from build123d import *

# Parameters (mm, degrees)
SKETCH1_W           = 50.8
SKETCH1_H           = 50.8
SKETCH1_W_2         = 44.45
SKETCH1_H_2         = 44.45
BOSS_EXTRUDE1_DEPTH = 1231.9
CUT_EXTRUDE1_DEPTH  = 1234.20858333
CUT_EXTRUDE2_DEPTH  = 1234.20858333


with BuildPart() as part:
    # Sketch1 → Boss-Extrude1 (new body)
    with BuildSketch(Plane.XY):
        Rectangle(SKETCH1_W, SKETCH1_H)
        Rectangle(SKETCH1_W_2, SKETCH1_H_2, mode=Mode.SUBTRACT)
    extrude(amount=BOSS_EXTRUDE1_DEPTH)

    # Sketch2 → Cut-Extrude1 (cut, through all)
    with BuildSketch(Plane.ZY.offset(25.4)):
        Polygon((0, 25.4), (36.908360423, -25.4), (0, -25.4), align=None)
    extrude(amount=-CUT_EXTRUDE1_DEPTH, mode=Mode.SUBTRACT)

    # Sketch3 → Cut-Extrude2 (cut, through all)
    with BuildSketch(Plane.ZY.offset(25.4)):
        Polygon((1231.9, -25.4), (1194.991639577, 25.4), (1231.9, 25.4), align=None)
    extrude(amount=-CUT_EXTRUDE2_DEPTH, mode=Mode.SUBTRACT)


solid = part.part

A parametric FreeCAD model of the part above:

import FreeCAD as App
import Part
import Sketcher

V = App.Vector
Q = App.Units.Quantity

doc = App.newDocument("Part")
body = doc.addObject("PartDesign::Body", "Body")

# Sketch on XY plane
sketch1 = body.newObject("Sketcher::SketchObject", "Sketch")
sketch1.AttachmentSupport = (doc.getObject("XY_Plane"), [""])
sketch1.MapMode = "FlatFace"
sketch1.addGeometry(Part.LineSegment(V(-25.4, 25.4, 0), V(-25.4, -25.4, 0)), False)
sketch1.addGeometry(Part.LineSegment(V(-25.4, -25.4, 0), V(25.4, -25.4, 0)), False)
sketch1.addGeometry(Part.LineSegment(V(25.4, -25.4, 0), V(25.4, 25.4, 0)), False)
sketch1.addGeometry(Part.LineSegment(V(25.4, 25.4, 0), V(-25.4, 25.4, 0)), False)
sketch1.addGeometry(Part.LineSegment(V(22.225, -22.225, 0), V(-22.225, -22.225, 0)), False)
sketch1.addGeometry(Part.LineSegment(V(-22.225, -22.225, 0), V(-22.225, 22.225, 0)), False)
sketch1.addGeometry(Part.LineSegment(V(-22.225, 22.225, 0), V(22.225, 22.225, 0)), False)
sketch1.addGeometry(Part.LineSegment(V(22.225, 22.225, 0), V(22.225, -22.225, 0)), False)
sketch1.addConstraint(Sketcher.Constraint("Coincident", 0, 2, 1, 1))
sketch1.addConstraint(Sketcher.Constraint("Coincident", 1, 2, 2, 1))
sketch1.addConstraint(Sketcher.Constraint("Coincident", 2, 2, 3, 1))
sketch1.addConstraint(Sketcher.Constraint("Coincident", 3, 2, 0, 1))
sketch1.addConstraint(Sketcher.Constraint("Coincident", 4, 2, 5, 1))
sketch1.addConstraint(Sketcher.Constraint("Coincident", 5, 2, 6, 1))
sketch1.addConstraint(Sketcher.Constraint("Coincident", 6, 2, 7, 1))
sketch1.addConstraint(Sketcher.Constraint("Coincident", 7, 2, 4, 1))
sketch1.addConstraint(Sketcher.Constraint("Vertical", 0))
sketch1.addConstraint(Sketcher.Constraint("Horizontal", 1))
sketch1.addConstraint(Sketcher.Constraint("Vertical", 2))
sketch1.addConstraint(Sketcher.Constraint("Horizontal", 3))
sketch1.addConstraint(Sketcher.Constraint("Horizontal", 4))
sketch1.addConstraint(Sketcher.Constraint("Vertical", 5))
sketch1.addConstraint(Sketcher.Constraint("Horizontal", 6))
sketch1.addConstraint(Sketcher.Constraint("Vertical", 7))
sketch1.addConstraint(Sketcher.Constraint("Symmetric", 0, 2, 2, 2, -1, 1))
sketch1.addConstraint(Sketcher.Constraint("Symmetric", 4, 2, 6, 2, -1, 1))
sketch1.addConstraint(Sketcher.Constraint("Equal", 3, 0))
sketch1.addConstraint(Sketcher.Constraint("Equal", 6, 5))
sketch1.addConstraint(Sketcher.Constraint("DistanceX", 1, 1, 1, 2, Q("2 in")))
sketch1.addConstraint(Sketcher.Constraint("DistanceX", 4, 2, 4, 1, Q("1.75 in")))
pad1 = body.newObject("PartDesign::Pad", "Pad")
pad1.Profile = sketch1
pad1.Length = Q("48.5 in")

# Sketch on YZ plane
sketch2 = body.newObject("Sketcher::SketchObject", "Sketch001")
sketch2.AttachmentSupport = (doc.getObject("YZ_Plane"), [""])
sketch2.MapMode = "FlatFace"
sketch2.AttachmentOffset = App.Placement(V(0, 0, -1 * 25.4), App.Rotation())
sketch2.addGeometry(Part.LineSegment(V(-25.4, 36.90836, 0), V(25.4, 0, 0)), False)
sketch2.addGeometry(Part.LineSegment(V(25.4, 0, 0), V(-25.4, 0, 0)), False)
sketch2.addGeometry(Part.LineSegment(V(-25.4, 0, 0), V(-25.4, 36.90836, 0)), False)
sketch2.addConstraint(Sketcher.Constraint("Coincident", 0, 2, 1, 1))
sketch2.addConstraint(Sketcher.Constraint("Coincident", 1, 2, 2, 1))
sketch2.addConstraint(Sketcher.Constraint("Coincident", 2, 2, 0, 1))
sketch2.addConstraint(Sketcher.Constraint("Horizontal", 1))
sketch2.addConstraint(Sketcher.Constraint("Vertical", 2))
sketch2.addConstraint(Sketcher.Constraint("Symmetric", 0, 2, 1, 2, -1, 1))
sketch2.addConstraint(Sketcher.Constraint("DistanceX", 1, 2, 1, 1, Q("2 in")))
sketch2.addConstraint(Sketcher.Constraint("Angle", 0, Q("-36 deg")))
pocket1 = body.newObject("PartDesign::Pocket", "Pocket")
pocket1.Profile = sketch2
pocket1.Type = "ThroughAll"
pocket1.Reversed = True

# Sketch on YZ plane
sketch3 = body.newObject("Sketcher::SketchObject", "Sketch002")
sketch3.AttachmentSupport = (doc.getObject("YZ_Plane"), [""])
sketch3.MapMode = "FlatFace"
sketch3.AttachmentOffset = App.Placement(V(0, 0, -1 * 25.4), App.Rotation())
sketch3.addGeometry(Part.LineSegment(V(25.4, 1194.99164, 0), V(-25.4, 1231.9, 0)), False)
sketch3.addGeometry(Part.LineSegment(V(-25.4, 1231.9, 0), V(25.4, 1231.9, 0)), False)
sketch3.addGeometry(Part.LineSegment(V(25.4, 1231.9, 0), V(25.4, 1194.99164, 0)), False)
sketch3.addConstraint(Sketcher.Constraint("Coincident", 0, 2, 1, 1))
sketch3.addConstraint(Sketcher.Constraint("Coincident", 1, 2, 2, 1))
sketch3.addConstraint(Sketcher.Constraint("Coincident", 2, 2, 0, 1))
sketch3.addConstraint(Sketcher.Constraint("Horizontal", 1))
sketch3.addConstraint(Sketcher.Constraint("Vertical", 2))
sketch3.addConstraint(Sketcher.Constraint("DistanceX", 1, 1, 1, 2, Q("2 in")))
sketch3.addConstraint(Sketcher.Constraint("DistanceX", 0, 2, -1, 1, Q("1 in")))
sketch3.addConstraint(Sketcher.Constraint("Angle", 0, Q("144 deg")))
sketch3.addConstraint(Sketcher.Constraint("DistanceY", -1, 1, 0, 2, Q("48.5 in")))
pocket2 = body.newObject("PartDesign::Pocket", "Pocket001")
pocket2.Profile = sketch3
pocket2.Type = "ThroughAll"
pocket2.Reversed = True

doc.recompute()
